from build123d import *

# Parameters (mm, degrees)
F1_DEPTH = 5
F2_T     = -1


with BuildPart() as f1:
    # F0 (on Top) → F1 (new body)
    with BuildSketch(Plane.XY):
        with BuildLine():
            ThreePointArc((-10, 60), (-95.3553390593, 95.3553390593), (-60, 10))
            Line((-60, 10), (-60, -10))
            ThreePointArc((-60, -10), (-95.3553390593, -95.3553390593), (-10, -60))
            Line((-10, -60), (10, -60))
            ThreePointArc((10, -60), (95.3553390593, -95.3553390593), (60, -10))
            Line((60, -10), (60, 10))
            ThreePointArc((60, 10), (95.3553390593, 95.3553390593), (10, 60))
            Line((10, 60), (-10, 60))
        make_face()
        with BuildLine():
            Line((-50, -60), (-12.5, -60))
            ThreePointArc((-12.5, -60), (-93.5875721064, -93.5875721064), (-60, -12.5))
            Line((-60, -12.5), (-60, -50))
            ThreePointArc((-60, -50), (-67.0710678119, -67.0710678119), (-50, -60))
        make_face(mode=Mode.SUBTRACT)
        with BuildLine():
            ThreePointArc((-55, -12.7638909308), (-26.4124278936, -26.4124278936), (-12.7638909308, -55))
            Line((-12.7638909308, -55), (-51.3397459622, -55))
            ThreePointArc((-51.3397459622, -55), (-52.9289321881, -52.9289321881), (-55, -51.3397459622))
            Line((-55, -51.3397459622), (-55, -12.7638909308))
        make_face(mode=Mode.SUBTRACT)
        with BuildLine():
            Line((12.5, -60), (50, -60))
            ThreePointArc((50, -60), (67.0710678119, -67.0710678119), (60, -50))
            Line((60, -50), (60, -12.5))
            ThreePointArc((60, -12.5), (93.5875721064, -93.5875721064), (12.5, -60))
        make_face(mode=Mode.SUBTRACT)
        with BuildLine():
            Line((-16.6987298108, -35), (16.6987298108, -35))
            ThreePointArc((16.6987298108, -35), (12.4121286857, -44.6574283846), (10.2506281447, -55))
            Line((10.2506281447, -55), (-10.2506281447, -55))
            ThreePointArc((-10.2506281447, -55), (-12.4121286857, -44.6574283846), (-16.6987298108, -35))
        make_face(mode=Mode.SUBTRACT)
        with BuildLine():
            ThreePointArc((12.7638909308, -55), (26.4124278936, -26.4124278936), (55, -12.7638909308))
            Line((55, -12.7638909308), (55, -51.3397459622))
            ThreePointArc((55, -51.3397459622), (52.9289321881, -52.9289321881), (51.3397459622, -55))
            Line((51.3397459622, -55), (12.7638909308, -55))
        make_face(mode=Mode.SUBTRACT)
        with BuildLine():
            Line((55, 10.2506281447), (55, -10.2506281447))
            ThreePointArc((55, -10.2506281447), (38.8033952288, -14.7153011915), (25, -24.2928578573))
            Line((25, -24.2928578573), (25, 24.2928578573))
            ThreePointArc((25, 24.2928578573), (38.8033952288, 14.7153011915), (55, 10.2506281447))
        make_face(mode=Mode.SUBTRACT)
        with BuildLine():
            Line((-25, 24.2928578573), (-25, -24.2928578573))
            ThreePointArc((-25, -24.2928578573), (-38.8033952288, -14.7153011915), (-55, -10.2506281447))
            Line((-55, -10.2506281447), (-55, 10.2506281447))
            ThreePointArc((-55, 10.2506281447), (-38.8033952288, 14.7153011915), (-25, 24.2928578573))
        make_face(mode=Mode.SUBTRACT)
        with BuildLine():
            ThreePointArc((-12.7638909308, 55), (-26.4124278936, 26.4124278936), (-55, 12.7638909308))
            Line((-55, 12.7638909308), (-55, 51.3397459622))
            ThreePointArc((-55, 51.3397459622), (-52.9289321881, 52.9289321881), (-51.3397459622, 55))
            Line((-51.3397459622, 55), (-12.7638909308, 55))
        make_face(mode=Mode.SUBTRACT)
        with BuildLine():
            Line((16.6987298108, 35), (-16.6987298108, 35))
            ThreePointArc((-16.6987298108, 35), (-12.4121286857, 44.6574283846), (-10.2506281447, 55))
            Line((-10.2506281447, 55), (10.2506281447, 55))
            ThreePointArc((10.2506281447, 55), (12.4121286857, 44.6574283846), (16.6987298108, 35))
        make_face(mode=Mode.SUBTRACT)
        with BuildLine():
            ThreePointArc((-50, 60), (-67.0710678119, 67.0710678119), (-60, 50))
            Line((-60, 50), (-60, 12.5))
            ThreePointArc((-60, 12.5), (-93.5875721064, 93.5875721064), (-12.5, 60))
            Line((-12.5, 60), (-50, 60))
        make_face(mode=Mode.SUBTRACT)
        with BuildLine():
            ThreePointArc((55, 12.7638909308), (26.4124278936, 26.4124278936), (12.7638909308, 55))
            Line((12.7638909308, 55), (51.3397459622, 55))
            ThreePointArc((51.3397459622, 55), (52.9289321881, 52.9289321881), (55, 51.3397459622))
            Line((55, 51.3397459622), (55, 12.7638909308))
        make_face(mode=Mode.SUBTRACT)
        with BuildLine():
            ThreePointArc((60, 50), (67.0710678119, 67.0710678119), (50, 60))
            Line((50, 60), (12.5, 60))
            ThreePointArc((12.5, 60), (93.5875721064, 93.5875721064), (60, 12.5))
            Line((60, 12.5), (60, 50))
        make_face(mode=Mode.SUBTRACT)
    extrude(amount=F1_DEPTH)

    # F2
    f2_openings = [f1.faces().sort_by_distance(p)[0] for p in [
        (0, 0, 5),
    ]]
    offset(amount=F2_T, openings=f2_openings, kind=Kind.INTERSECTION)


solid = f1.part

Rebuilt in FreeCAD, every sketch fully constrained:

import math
import FreeCAD as App
import Part
import Sketcher

V = App.Vector
Q = App.Units.Quantity


def faces_at(feature, points):
    """Names of the faces that lie closest to the given points."""
    faces = feature.Shape.Faces
    near = lambda p: min(range(len(faces)), key=lambda i: faces[i].distToShape(Part.Vertex(*p))[0])
    return sorted({f"Face{near(p) + 1}" for p in points})

doc = App.newDocument("Part")
body = doc.addObject("PartDesign::Body", "Body")

sketch1 = body.newObject("Sketcher::SketchObject", "Sketch")
sketch1.AttachmentSupport = (doc.getObject("XY_Plane"), [""])
sketch1.MapMode = "FlatFace"
sketch1.addGeometry(Part.ArcOfCircle(Part.Circle(V(-60, 60, 0), V(0, 0, 1), 50), math.radians(0), math.radians(270)), False)
sketch1.addGeometry(Part.LineSegment(V(-60, 10, 0), V(-60, -10, 0)), False)
sketch1.addGeometry(Part.ArcOfCircle(Part.Circle(V(-60, -60, 0), V(0, 0, 1), 50), math.radians(90), math.radians(360)), False)
sketch1.addGeometry(Part.LineSegment(V(-10, -60, 0), V(10, -60, 0)), False)
sketch1.addGeometry(Part.ArcOfCircle(Part.Circle(V(60, -60, 0), V(0, 0, 1), 50), math.radians(180), math.radians(450)), False)
sketch1.addGeometry(Part.LineSegment(V(60, -10, 0), V(60, 10, 0)), False)
sketch1.addGeometry(Part.ArcOfCircle(Part.Circle(V(60, 60, 0), V(0, 0, 1), 50), math.radians(-90), math.radians(180)), False)
sketch1.addGeometry(Part.LineSegment(V(10, 60, 0), V(-10, 60, 0)), False)
sketch1.addGeometry(Part.ArcOfCircle(Part.Circle(V(-60, -60, 0), V(0, 0, 1), 10), math.radians(90), math.radians(360)), False)
sketch1.addGeometry(Part.LineSegment(V(-50, -60, 0), V(-12.5, -60, 0)), False)
sketch1.addGeometry(Part.ArcOfCircle(Part.Circle(V(-60, -60, 0), V(0, 0, 1), 47.5), math.radians(90), math.radians(360)), False)
sketch1.addGeometry(Part.LineSegment(V(-60, -12.5, 0), V(-60, -50, 0)), False)
sketch1.addGeometry(Part.LineSegment(V(-55, -51.339746, 0), V(-55, -12.763891, 0)), False)
sketch1.addGeometry(Part.ArcOfCircle(Part.Circle(V(-60, -60, 0), V(0, 0, 1), 47.5), math.radians(6.042328), math.radians(83.957672)), False)
sketch1.addGeometry(Part.LineSegment(V(-12.763891, -55, 0), V(-51.339746, -55, 0)), False)
sketch1.addGeometry(Part.ArcOfCircle(Part.Circle(V(-60, -60, 0), V(0, 0, 1), 10), math.radians(30), math.radians(60)), False)
sketch1.addGeometry(Part.ArcOfCircle(Part.Circle(V(60, -60, 0), V(0, 0, 1), 47.5), math.radians(180), math.radians(450)), False)
sketch1.addGeometry(Part.LineSegment(V(12.5, -60, 0), V(50, -60, 0)), False)
sketch1.addGeometry(Part.ArcOfCircle(Part.Circle(V(60, -60, 0), V(0, 0, 1), 10), math.radians(180), math.radians(450)), False)
sketch1.addGeometry(Part.LineSegment(V(60, -50, 0), V(60, -12.5, 0)), False)
sketch1.addGeometry(Part.ArcOfCircle(Part.Circle(V(-60, -60, 0), V(0, 0, 1), 50), math.radians(5.73917), math.radians(30)), False)
sketch1.addGeometry(Part.LineSegment(V(-16.69873, -35, 0), V(16.69873, -35, 0)), False)
sketch1.addGeometry(Part.ArcOfCircle(Part.Circle(V(60, -60, 0), V(0, 0, 1), 50), math.radians(150), math.radians(174.26083)), False)
sketch1.addGeometry(Part.LineSegment(V(10.250628, -55, 0), V(-10.250628, -55, 0)), False)
sketch1.addGeometry(Part.LineSegment(V(51.339746, -55, 0), V(12.763891, -55, 0)), False)
sketch1.addGeometry(Part.ArcOfCircle(Part.Circle(V(60, -60, 0), V(0, 0, 1), 47.5), math.radians(96.042328), math.radians(173.957672)), False)
sketch1.addGeometry(Part.LineSegment(V(55, -12.763891, 0), V(55, -51.339746, 0)), False)
sketch1.addGeometry(Part.ArcOfCircle(Part.Circle(V(60, -60, 0), V(0, 0, 1), 10), math.radians(120), math.radians(150)), False)
sketch1.addGeometry(Part.ArcOfCircle(Part.Circle(V(-60, 60, 0), V(0, 0, 1), 50), math.radians(-84.26083), math.radians(-45.572996)), False)
sketch1.addGeometry(Part.LineSegment(V(-25, 24.292858, 0), V(-25, -24.292858, 0)), False)
sketch1.addGeometry(Part.ArcOfCircle(Part.Circle(V(-60, -60, 0), V(0, 0, 1), 50), math.radians(45.572996), math.radians(84.26083)), False)
sketch1.addGeometry(Part.LineSegment(V(-55, -10.250628, 0), V(-55, 10.250628, 0)), False)
sketch1.addGeometry(Part.LineSegment(V(-51.339746, 55, 0), V(-12.763891, 55, 0)), False)
sketch1.addGeometry(Part.ArcOfCircle(Part.Circle(V(-60, 60, 0), V(0, 0, 1), 47.5), math.radians(-83.957672), math.radians(-6.042328)), False)
sketch1.addGeometry(Part.LineSegment(V(-55, 12.763891, 0), V(-55, 51.339746, 0)), False)
sketch1.addGeometry(Part.ArcOfCircle(Part.Circle(V(-60, 60, 0), V(0, 0, 1), 10), math.radians(-60), math.radians(-30)), False)
sketch1.addGeometry(Part.LineSegment(V(-12.5, 60, 0), V(-50, 60, 0)), False)
sketch1.addGeometry(Part.ArcOfCircle(Part.Circle(V(-60, 60, 0), V(0, 0, 1), 10), math.radians(0), math.radians(270)), False)
sketch1.addGeometry(Part.LineSegment(V(-60, 50, 0), V(-60, 12.5, 0)), False)
sketch1.addGeometry(Part.ArcOfCircle(Part.Circle(V(-60, 60, 0), V(0, 0, 1), 47.5), math.radians(0), math.radians(270)), False)
sketch1.addGeometry(Part.ArcOfCircle(Part.Circle(V(60, 60, 0), V(0, 0, 1), 50), math.radians(-134.427004), math.radians(-95.73917)), False)
sketch1.addGeometry(Part.LineSegment(V(55, 10.250628, 0), V(55, -10.250628, 0)), False)
sketch1.addGeometry(Part.ArcOfCircle(Part.Circle(V(60, -60, 0), V(0, 0, 1), 50), math.radians(95.73917), math.radians(134.427004)), False)
sketch1.addGeometry(Part.LineSegment(V(25, -24.292858, 0), V(25, 24.292858, 0)), False)
sketch1.addGeometry(Part.ArcOfCircle(Part.Circle(V(60, 60, 0), V(0, 0, 1), 50), math.radians(-174.26083), math.radians(-150)), False)
sketch1.addGeometry(Part.LineSegment(V(16.69873, 35, 0), V(-16.69873, 35, 0)), False)
sketch1.addGeometry(Part.ArcOfCircle(Part.Circle(V(-60, 60, 0), V(0, 0, 1), 50), math.radians(-30), math.radians(-5.73917)), False)
sketch1.addGeometry(Part.LineSegment(V(-10.250628, 55, 0), V(10.250628, 55, 0)), False)
sketch1.addGeometry(Part.LineSegment(V(55, 51.339746, 0), V(55, 12.763891, 0)), False)
sketch1.addGeometry(Part.ArcOfCircle(Part.Circle(V(60, 60, 0), V(0, 0, 1), 47.5), math.radians(-173.957672), math.radians(-96.042328)), False)
sketch1.addGeometry(Part.LineSegment(V(12.763891, 55, 0), V(51.339746, 55, 0)), False)
sketch1.addGeometry(Part.ArcOfCircle(Part.Circle(V(60, 60, 0), V(0, 0, 1), 10), math.radians(-150), math.radians(-120)), False)
sketch1.addGeometry(Part.LineSegment(V(60, 12.5, 0), V(60, 50, 0)), False)
sketch1.addGeometry(Part.ArcOfCircle(Part.Circle(V(60, 60, 0), V(0, 0, 1), 10), math.radians(-90), math.radians(180)), False)
sketch1.addGeometry(Part.LineSegment(V(50, 60, 0), V(12.5, 60, 0)), False)
sketch1.addGeometry(Part.ArcOfCircle(Part.Circle(V(60, 60, 0), V(0, 0, 1), 47.5), math.radians(-90), math.radians(180)), False)
sketch1.addConstraint(Sketcher.Constraint("Coincident", 0, 2, 1, 1))
sketch1.addConstraint(Sketcher.Constraint("Coincident", 1, 2, 2, 1))
sketch1.addConstraint(Sketcher.Constraint("Coincident", 2, 2, 3, 1))
sketch1.addConstraint(Sketcher.Constraint("Coincident", 3, 2, 4, 1))
sketch1.addConstraint(Sketcher.Constraint("Coincident", 4, 2, 5, 1))
sketch1.addConstraint(Sketcher.Constraint("Coincident", 5, 2, 6, 1))
sketch1.addConstraint(Sketcher.Constraint("Coincident", 6, 2, 7, 1))
sketch1.addConstraint(Sketcher.Constraint("Coincident", 7, 2, 0, 1))
sketch1.addConstraint(Sketcher.Constraint("Coincident", 8, 2, 9, 1))
sketch1.addConstraint(Sketcher.Constraint("Coincident", 9, 2, 10, 2))
sketch1.addConstraint(Sketcher.Constraint("Coincident", 10, 1, 11, 1))
sketch1.addConstraint(Sketcher.Constraint("Coincident", 11, 2, 8, 1))
sketch1.addConstraint(Sketcher.Constraint("Coincident", 12, 2, 13, 2))
sketch1.addConstraint(Sketcher.Constraint("Coincident", 13, 1, 14, 1))
sketch1.addConstraint(Sketcher.Constraint("Coincident", 14, 2, 15, 1))
sketch1.addConstraint(Sketcher.Constraint("Coincident", 15, 2, 12, 1))
sketch1.addConstraint(Sketcher.Constraint("Coincident", 16, 1, 17, 1))
sketch1.addConstraint(Sketcher.Constraint("Coincident", 17, 2, 18, 1))
sketch1.addConstraint(Sketcher.Constraint("Coincident", 18, 2, 19, 1))
sketch1.addConstraint(Sketcher.Constraint("Coincident", 19, 2, 16, 2))
sketch1.addConstraint(Sketcher.Constraint("Coincident", 20, 2, 21, 1))
sketch1.addConstraint(Sketcher.Constraint("Coincident", 21, 2, 22, 1))
sketch1.addConstraint(Sketcher.Constraint("Coincident", 22, 2, 23, 1))
sketch1.addConstraint(Sketcher.Constraint("Coincident", 23, 2, 20, 1))
sketch1.addConstraint(Sketcher.Constraint("Coincident", 24, 2, 25, 2))
sketch1.addConstraint(Sketcher.Constraint("Coincident", 25, 1, 26, 1))
sketch1.addConstraint(Sketcher.Constraint("Coincident", 26, 2, 27, 1))
sketch1.addConstraint(Sketcher.Constraint("Coincident", 27, 2, 24, 1))
sketch1.addConstraint(Sketcher.Constraint("Coincident", 28, 2, 29, 1))
sketch1.addConstraint(Sketcher.Constraint("Coincident", 29, 2, 30, 1))
sketch1.addConstraint(Sketcher.Constraint("Coincident", 30, 2, 31, 1))
sketch1.addConstraint(Sketcher.Constraint("Coincident", 31, 2, 28, 1))
sketch1.addConstraint(Sketcher.Constraint("Coincident", 32, 2, 33, 2))
sketch1.addConstraint(Sketcher.Constraint("Coincident", 33, 1, 34, 1))
sketch1.addConstraint(Sketcher.Constraint("Coincident", 34, 2, 35, 1))
sketch1.addConstraint(Sketcher.Constraint("Coincident", 35, 2, 32, 1))
sketch1.addConstraint(Sketcher.Constraint("Coincident", 36, 2, 37, 1))
sketch1.addConstraint(Sketcher.Constraint("Coincident", 37, 2, 38, 1))
sketch1.addConstraint(Sketcher.Constraint("Coincident", 38, 2, 39, 2))
sketch1.addConstraint(Sketcher.Constraint("Coincident", 39, 1, 36, 1))
sketch1.addConstraint(Sketcher.Constraint("Coincident", 40, 2, 41, 1))
sketch1.addConstraint(Sketcher.Constraint("Coincident", 41, 2, 42, 1))
sketch1.addConstraint(Sketcher.Constraint("Coincident", 42, 2, 43, 1))
sketch1.addConstraint(Sketcher.Constraint("Coincident", 43, 2, 40, 1))
sketch1.addConstraint(Sketcher.Constraint("Coincident", 44, 2, 45, 1))
sketch1.addConstraint(Sketcher.Constraint("Coincident", 45, 2, 46, 1))
sketch1.addConstraint(Sketcher.Constraint("Coincident", 46, 2, 47, 1))
sketch1.addConstraint(Sketcher.Constraint("Coincident", 47, 2, 44, 1))
sketch1.addConstraint(Sketcher.Constraint("Coincident", 48, 2, 49, 2))
sketch1.addConstraint(Sketcher.Constraint("Coincident", 49, 1, 50, 1))
sketch1.addConstraint(Sketcher.Constraint("Coincident", 50, 2, 51, 1))
sketch1.addConstraint(Sketcher.Constraint("Coincident", 51, 2, 48, 1))
sketch1.addConstraint(Sketcher.Constraint("Coincident", 52, 2, 53, 1))
sketch1.addConstraint(Sketcher.Constraint("Coincident", 53, 2, 54, 1))
sketch1.addConstraint(Sketcher.Constraint("Coincident", 54, 2, 55, 2))
sketch1.addConstraint(Sketcher.Constraint("Coincident", 55, 1, 52, 1))
sketch1.addConstraint(Sketcher.Constraint("Vertical", 1))
sketch1.addConstraint(Sketcher.Constraint("Horizontal", 3))
sketch1.addConstraint(Sketcher.Constraint("Vertical", 5))
sketch1.addConstraint(Sketcher.Constraint("Horizontal", 7))
sketch1.addConstraint(Sketcher.Constraint("Horizontal", 9))
sketch1.addConstraint(Sketcher.Constraint("Vertical", 11))
sketch1.addConstraint(Sketcher.Constraint("Vertical", 12))
sketch1.addConstraint(Sketcher.Constraint("Horizontal", 14))
sketch1.addConstraint(Sketcher.Constraint("Horizontal", 17))
sketch1.addConstraint(Sketcher.Constraint("Vertical", 19))
sketch1.addConstraint(Sketcher.Constraint("Horizontal", 21))
sketch1.addConstraint(Sketcher.Constraint("Horizontal", 23))
sketch1.addConstraint(Sketcher.Constraint("Horizontal", 24))
sketch1.addConstraint(Sketcher.Constraint("Vertical", 26))
sketch1.addConstraint(Sketcher.Constraint("Vertical", 29))
sketch1.addConstraint(Sketcher.Constraint("Vertical", 31))
sketch1.addConstraint(Sketcher.Constraint("Horizontal", 32))
sketch1.addConstraint(Sketcher.Constraint("Vertical", 34))
sketch1.addConstraint(Sketcher.Constraint("Horizontal", 36))
sketch1.addConstraint(Sketcher.Constraint("Vertical", 38))
sketch1.addConstraint(Sketcher.Constraint("Vertical", 41))
sketch1.addConstraint(Sketcher.Constraint("Vertical", 43))
sketch1.addConstraint(Sketcher.Constraint("Horizontal", 45))
sketch1.addConstraint(Sketcher.Constraint("Horizontal", 47))
sketch1.addConstraint(Sketcher.Constraint("Vertical", 48))
sketch1.addConstraint(Sketcher.Constraint("Horizontal", 50))
sketch1.addConstraint(Sketcher.Constraint("Vertical", 52))
sketch1.addConstraint(Sketcher.Constraint("Horizontal", 54))
sketch1.addConstraint(Sketcher.Constraint("Coincident", 8, 3, 2, 3))
sketch1.addConstraint(Sketcher.Constraint("Coincident", 10, 3, 2, 3))
sketch1.addConstraint(Sketcher.Constraint("Coincident", 13, 3, 2, 3))
sketch1.addConstraint(Sketcher.Constraint("Coincident", 15, 3, 2, 3))
sketch1.addConstraint(Sketcher.Constraint("Coincident", 16, 3, 4, 3))
sketch1.addConstraint(Sketcher.Constraint("Coincident", 18, 3, 4, 3))
sketch1.addConstraint(Sketcher.Constraint("Coincident", 20, 3, 2, 3))
sketch1.addConstraint(Sketcher.Constraint("Coincident", 22, 3, 4, 3))
sketch1.addConstraint(Sketcher.Constraint("Coincident", 25, 3, 4, 3))
sketch1.addConstraint(Sketcher.Constraint("Coincident", 27, 3, 4, 3))
sketch1.addConstraint(Sketcher.Constraint("Coincident", 28, 3, 0, 3))
sketch1.addConstraint(Sketcher.Constraint("Coincident", 30, 3, 2, 3))
sketch1.addConstraint(Sketcher.Constraint("Coincident", 33, 3, 0, 3))
sketch1.addConstraint(Sketcher.Constraint("Coincident", 35, 3, 0, 3))
sketch1.addConstraint(Sketcher.Constraint("Coincident", 37, 3, 0, 3))
sketch1.addConstraint(Sketcher.Constraint("Coincident", 39, 3, 0, 3))
sketch1.addConstraint(Sketcher.Constraint("Coincident", 40, 3, 6, 3))
sketch1.addConstraint(Sketcher.Constraint("Coincident", 42, 3, 4, 3))
sketch1.addConstraint(Sketcher.Constraint("Coincident", 44, 3, 6, 3))
sketch1.addConstraint(Sketcher.Constraint("Coincident", 46, 3, 0, 3))
sketch1.addConstraint(Sketcher.Constraint("Coincident", 49, 3, 6, 3))
sketch1.addConstraint(Sketcher.Constraint("Coincident", 51, 3, 6, 3))
sketch1.addConstraint(Sketcher.Constraint("Coincident", 53, 3, 6, 3))
sketch1.addConstraint(Sketcher.Constraint("Coincident", 55, 3, 6, 3))
sketch1.addConstraint(Sketcher.Constraint("Equal", 0, 2))
sketch1.addConstraint(Sketcher.Constraint("Equal", 2, 4))
sketch1.addConstraint(Sketcher.Constraint("Equal", 4, 6))
sketch1.addConstraint(Sketcher.Constraint("Equal", 10, 13))
sketch1.addConstraint(Sketcher.Constraint("Equal", 8, 15))
sketch1.addConstraint(Sketcher.Constraint("Equal", 13, 16))
sketch1.addConstraint(Sketcher.Constraint("Equal", 15, 18))
sketch1.addConstraint(Sketcher.Constraint("Equal", 6, 20))
sketch1.addConstraint(Sketcher.Constraint("Equal", 20, 22))
sketch1.addConstraint(Sketcher.Constraint("Equal", 16, 25))
sketch1.addConstraint(Sketcher.Constraint("Equal", 18, 27))
sketch1.addConstraint(Sketcher.Constraint("Equal", 22, 28))
sketch1.addConstraint(Sketcher.Constraint("Equal", 28, 30))
sketch1.addConstraint(Sketcher.Constraint("Equal", 25, 33))
sketch1.addConstraint(Sketcher.Constraint("Equal", 27, 35))
sketch1.addConstraint(Sketcher.Constraint("Equal", 35, 37))
sketch1.addConstraint(Sketcher.Constraint("Equal", 33, 39))
sketch1.addConstraint(Sketcher.Constraint("Equal", 30, 40))
sketch1.addConstraint(Sketcher.Constraint("Equal", 40, 42))
sketch1.addConstraint(Sketcher.Constraint("Equal", 42, 44))
sketch1.addConstraint(Sketcher.Constraint("Equal", 44, 46))
sketch1.addConstraint(Sketcher.Constraint("Equal", 39, 49))
sketch1.addConstraint(Sketcher.Constraint("Equal", 37, 51))
sketch1.addConstraint(Sketcher.Constraint("Equal", 51, 53))
sketch1.addConstraint(Sketcher.Constraint("Equal", 49, 55))
sketch1.addConstraint(Sketcher.Constraint("Symmetric", 0, 3, 4, 3, -1, 1))
sketch1.addConstraint(Sketcher.Constraint("Symmetric", 2, 3, 6, 3, -1, 1))
sketch1.addConstraint(Sketcher.Constraint("Symmetric", 2, 3, 4, 3, -2))
sketch1.addConstraint(Sketcher.Constraint("Horizontal", 42, 3, 2, 2))
sketch1.addConstraint(Sketcher.Constraint("Horizontal", 55, 3, 6, 2))
sketch1.addConstraint(Sketcher.Constraint("Horizontal", 3, 2, 8, 2))
sketch1.addConstraint(Sketcher.Constraint("Horizontal", 9, 2, 16, 1))
sketch1.addConstraint(Sketcher.Constraint("Horizontal", 14, 2, 22, 2))
sketch1.addConstraint(Sketcher.Constraint("Horizontal", 23, 2, 24, 2))
sketch1.addConstraint(Sketcher.Constraint("Horizontal", 12, 2, 25, 1))
sketch1.addConstraint(Sketcher.Constraint("Horizontal", 7, 2, 36, 2))
sketch1.addConstraint(Sketcher.Constraint("Horizontal", 31, 2, 40, 2))
sketch1.addConstraint(Sketcher.Constraint("Horizontal", 29, 2, 42, 2))
sketch1.addConstraint(Sketcher.Constraint("Horizontal", 35, 2, 46, 2))
sketch1.addConstraint(Sketcher.Constraint("Horizontal", 33, 1, 48, 2))
sketch1.addConstraint(Sketcher.Constraint("Horizontal", 47, 2, 49, 1))
sketch1.addConstraint(Sketcher.Constraint("Horizontal", 39, 1, 53, 2))
sketch1.addConstraint(Sketcher.Constraint("Vertical", 46, 3, 0, 2))
sketch1.addConstraint(Sketcher.Constraint("Vertical", 55, 3, 4, 2))
sketch1.addConstraint(Sketcher.Constraint("Vertical", 1, 2, 10, 1))
sketch1.addConstraint(Sketcher.Constraint("Vertical", 5, 2, 18, 2))
sketch1.addConstraint(Sketcher.Constraint("Vertical", 15, 2, 30, 2))
sketch1.addConstraint(Sketcher.Constraint("Vertical", 13, 1, 32, 2))
sketch1.addConstraint(Sketcher.Constraint("Vertical", 31, 2, 33, 1))
sketch1.addConstraint(Sketcher.Constraint("Vertical", 11, 2, 37, 2))
sketch1.addConstraint(Sketcher.Constraint("Vertical", 21, 2, 44, 2))
sketch1.addConstraint(Sketcher.Constraint("Vertical", 19, 2, 52, 2))
sketch1.addConstraint(Sketcher.Constraint("Equal", 7, 1))
sketch1.addConstraint(Sketcher.Constraint("Equal", 50, 12))
sketch1.addConstraint(Sketcher.Constraint("Radius", 0, Q("50 mm")))
sketch1.addConstraint(Sketcher.Constraint("Radius", 8, Q("10 mm")))
sketch1.addConstraint(Sketcher.Constraint("Radius", 10, Q("47.5 mm")))
sketch1.addConstraint(Sketcher.Constraint("DistanceX", 3, 1, 3, 2, Q("20 mm")))
sketch1.addConstraint(Sketcher.Constraint("DistanceX", 12, 2, -1, 1, Q("55 mm")))
sketch1.addConstraint(Sketcher.Constraint("DistanceY", 20, 2, -1, 1, Q("35 mm")))
sketch1.addConstraint(Sketcher.Constraint("DistanceX", 28, 2, -1, 1, Q("25 mm")))
pad1 = body.newObject("PartDesign::Pad", "Pad")
pad1.Profile = sketch1
pad1.Length = 5
doc.recompute()

thickness = body.newObject("PartDesign::Thickness", "Thickness")
thickness.Base = (pad1, faces_at(pad1, [(0, 0, 5)]))
thickness.Value = 1
thickness.Reversed = True
thickness.Join = "Intersection"

doc.recompute()
